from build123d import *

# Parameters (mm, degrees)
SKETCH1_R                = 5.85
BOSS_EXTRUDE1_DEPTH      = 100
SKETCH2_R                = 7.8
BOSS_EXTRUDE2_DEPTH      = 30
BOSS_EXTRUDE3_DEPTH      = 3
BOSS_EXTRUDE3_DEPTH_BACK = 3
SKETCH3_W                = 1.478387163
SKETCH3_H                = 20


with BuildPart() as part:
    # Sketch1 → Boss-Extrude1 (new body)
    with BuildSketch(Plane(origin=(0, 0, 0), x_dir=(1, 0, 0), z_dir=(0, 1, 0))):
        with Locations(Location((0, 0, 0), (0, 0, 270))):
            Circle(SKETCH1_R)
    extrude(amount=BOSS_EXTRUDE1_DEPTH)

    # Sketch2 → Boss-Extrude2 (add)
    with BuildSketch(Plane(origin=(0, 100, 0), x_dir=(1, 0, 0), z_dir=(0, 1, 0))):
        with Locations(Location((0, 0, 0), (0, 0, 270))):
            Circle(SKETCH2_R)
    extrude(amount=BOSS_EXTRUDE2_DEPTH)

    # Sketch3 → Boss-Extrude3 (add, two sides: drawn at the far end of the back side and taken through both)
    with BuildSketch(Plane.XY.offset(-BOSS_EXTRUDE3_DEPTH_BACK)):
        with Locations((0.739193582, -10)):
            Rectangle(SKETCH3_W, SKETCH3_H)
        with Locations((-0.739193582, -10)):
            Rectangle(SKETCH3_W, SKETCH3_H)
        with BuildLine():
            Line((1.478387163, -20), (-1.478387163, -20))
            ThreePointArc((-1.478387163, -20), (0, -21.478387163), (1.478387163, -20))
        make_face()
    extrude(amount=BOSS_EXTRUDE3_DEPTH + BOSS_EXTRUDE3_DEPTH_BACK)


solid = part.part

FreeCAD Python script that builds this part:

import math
import FreeCAD as App
import Part
import Sketcher

doc = App.newDocument("Part")
body = doc.addObject("PartDesign::Body", "Body")

# Sketch on XZ plane
sketch1 = body.newObject("Sketcher::SketchObject", "Sketch")
sketch1.AttachmentSupport = (doc.getObject("XZ_Plane"), [""])
sketch1.MapMode = "FlatFace"
sketch1.addGeometry(Part.Circle(App.Vector(0, 0, 0), App.Vector(0, 0, 1), 6), False)
sketch1.addConstraint(Sketcher.Constraint("Coincident", 0, 3, -1, 1))
sketch1.addConstraint(Sketcher.Constraint("Diameter", 0, 11.7))
pad1 = body.newObject("PartDesign::Pad", "Pad")
pad1.Profile = sketch1
pad1.Length = 100
pad1.Reversed = True

# Sketch on XZ plane
sketch2 = body.newObject("Sketcher::SketchObject", "Sketch001")
sketch2.AttachmentSupport = (doc.getObject("XZ_Plane"), [""])
sketch2.MapMode = "FlatFace"
sketch2.AttachmentOffset = App.Placement(App.Vector(0, 0, -100), App.Rotation())
sketch2.addGeometry(Part.Circle(App.Vector(0, 0, 0), App.Vector(0, 0, 1), 8), False)
sketch2.addConstraint(Sketcher.Constraint("Coincident", 0, 3, -1, 1))
sketch2.addConstraint(Sketcher.Constraint("Diameter", 0, 15.6))
pad2 = body.newObject("PartDesign::Pad", "Pad001")
pad2.Profile = sketch2
pad2.Length = 30
pad2.Reversed = True

# Sketch on XY plane
sketch3 = body.newObject("Sketcher::SketchObject", "Sketch002")
sketch3.AttachmentSupport = (doc.getObject("XY_Plane"), [""])
sketch3.MapMode = "FlatFace"
sketch3.addGeometry(Part.LineSegment(App.Vector(1.5, -20, 0), App.Vector(1.5, 0, 0)), False)
sketch3.addGeometry(Part.LineSegment(App.Vector(1.5, 0, 0), App.Vector(-1.5, 0, 0)), False)
sketch3.addGeometry(Part.LineSegment(App.Vector(-1.5, 0, 0), App.Vector(-1.5, -20, 0)), False)
sketch3.addGeometry(Part.ArcOfCircle(Part.Circle(App.Vector(0, -20, 0), App.Vector(0, 0, 1), 1.5), math.radians(180), math.radians(360)), False)
sketch3.addConstraint(Sketcher.Constraint("Coincident", 0, 2, 1, 1))
sketch3.addConstraint(Sketcher.Constraint("Coincident", 1, 2, 2, 1))
sketch3.addConstraint(Sketcher.Constraint("Tangent", 2, 2, 3, 1))
sketch3.addConstraint(Sketcher.Constraint("Tangent", 3, 2, 0, 1))
sketch3.addConstraint(Sketcher.Constraint("Vertical", 0))
sketch3.addConstraint(Sketcher.Constraint("Horizontal", 1))
sketch3.addConstraint(Sketcher.Constraint("Vertical", 2))
sketch3.addConstraint(Sketcher.Constraint("Symmetric", 0, 2, 1, 2, -1, 1))
sketch3.addConstraint(Sketcher.Constraint("DistanceY", 0, 1, 0, 2, 20.0))
sketch3.addConstraint(Sketcher.Constraint("Radius", 3, 1.478387))
pad3 = body.newObject("PartDesign::Pad", "Pad002")
pad3.Profile = sketch3
pad3.Type = "TwoLengths"
pad3.Length = 3
pad3.Length2 = 3

doc.recompute()
